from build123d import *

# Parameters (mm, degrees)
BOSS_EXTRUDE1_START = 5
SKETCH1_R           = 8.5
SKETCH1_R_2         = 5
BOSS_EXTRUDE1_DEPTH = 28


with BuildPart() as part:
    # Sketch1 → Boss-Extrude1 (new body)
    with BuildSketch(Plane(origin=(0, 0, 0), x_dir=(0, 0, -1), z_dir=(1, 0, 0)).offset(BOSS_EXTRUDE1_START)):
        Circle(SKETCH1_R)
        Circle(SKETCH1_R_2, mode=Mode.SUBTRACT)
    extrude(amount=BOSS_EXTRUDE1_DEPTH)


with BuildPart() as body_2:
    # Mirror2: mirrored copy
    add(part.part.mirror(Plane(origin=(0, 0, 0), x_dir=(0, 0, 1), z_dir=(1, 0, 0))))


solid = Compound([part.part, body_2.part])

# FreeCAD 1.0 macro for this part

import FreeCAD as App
import Part
import Sketcher

V = App.Vector

doc = App.newDocument("Part")
body = doc.addObject("PartDesign::Body", "Body")

# Sketch on YZ plane
sketch1 = body.newObject("Sketcher::SketchObject", "Sketch")
sketch1.AttachmentSupport = (doc.getObject("YZ_Plane"), [""])
sketch1.MapMode = "FlatFace"
sketch1.AttachmentOffset = App.Placement(V(0, 0, 5), App.Rotation())
sketch1.addGeometry(Part.Circle(V(0, 0, 0), V(0, 0, 1), 8), False)
sketch1.addGeometry(Part.Circle(V(0, 0, 0), V(0, 0, 1), 5), False)
sketch1.addConstraint(Sketcher.Constraint("Coincident", 0, 3, -1, 1))
sketch1.addConstraint(Sketcher.Constraint("Coincident", 1, 3, -1, 1))
sketch1.addConstraint(Sketcher.Constraint("Diameter", 0, 17.0))
sketch1.addConstraint(Sketcher.Constraint("Diameter", 1, 10.0))
pad1 = body.newObject("PartDesign::Pad", "Pad")
pad1.Profile = sketch1
pad1.Length = 28
body2 = doc.addObject("PartDesign::Body", "Body001")
doc.recompute()

mirroring = doc.addObject("Part::Mirroring", "Mirroring")
mirroring.Source = body
mirroring.Base = V(0, 0, 0)
mirroring.Normal = V(1, 0, 0)
body2.BaseFeature = mirroring
doc.recompute()
mirroring.Visibility = False

doc.recompute()
